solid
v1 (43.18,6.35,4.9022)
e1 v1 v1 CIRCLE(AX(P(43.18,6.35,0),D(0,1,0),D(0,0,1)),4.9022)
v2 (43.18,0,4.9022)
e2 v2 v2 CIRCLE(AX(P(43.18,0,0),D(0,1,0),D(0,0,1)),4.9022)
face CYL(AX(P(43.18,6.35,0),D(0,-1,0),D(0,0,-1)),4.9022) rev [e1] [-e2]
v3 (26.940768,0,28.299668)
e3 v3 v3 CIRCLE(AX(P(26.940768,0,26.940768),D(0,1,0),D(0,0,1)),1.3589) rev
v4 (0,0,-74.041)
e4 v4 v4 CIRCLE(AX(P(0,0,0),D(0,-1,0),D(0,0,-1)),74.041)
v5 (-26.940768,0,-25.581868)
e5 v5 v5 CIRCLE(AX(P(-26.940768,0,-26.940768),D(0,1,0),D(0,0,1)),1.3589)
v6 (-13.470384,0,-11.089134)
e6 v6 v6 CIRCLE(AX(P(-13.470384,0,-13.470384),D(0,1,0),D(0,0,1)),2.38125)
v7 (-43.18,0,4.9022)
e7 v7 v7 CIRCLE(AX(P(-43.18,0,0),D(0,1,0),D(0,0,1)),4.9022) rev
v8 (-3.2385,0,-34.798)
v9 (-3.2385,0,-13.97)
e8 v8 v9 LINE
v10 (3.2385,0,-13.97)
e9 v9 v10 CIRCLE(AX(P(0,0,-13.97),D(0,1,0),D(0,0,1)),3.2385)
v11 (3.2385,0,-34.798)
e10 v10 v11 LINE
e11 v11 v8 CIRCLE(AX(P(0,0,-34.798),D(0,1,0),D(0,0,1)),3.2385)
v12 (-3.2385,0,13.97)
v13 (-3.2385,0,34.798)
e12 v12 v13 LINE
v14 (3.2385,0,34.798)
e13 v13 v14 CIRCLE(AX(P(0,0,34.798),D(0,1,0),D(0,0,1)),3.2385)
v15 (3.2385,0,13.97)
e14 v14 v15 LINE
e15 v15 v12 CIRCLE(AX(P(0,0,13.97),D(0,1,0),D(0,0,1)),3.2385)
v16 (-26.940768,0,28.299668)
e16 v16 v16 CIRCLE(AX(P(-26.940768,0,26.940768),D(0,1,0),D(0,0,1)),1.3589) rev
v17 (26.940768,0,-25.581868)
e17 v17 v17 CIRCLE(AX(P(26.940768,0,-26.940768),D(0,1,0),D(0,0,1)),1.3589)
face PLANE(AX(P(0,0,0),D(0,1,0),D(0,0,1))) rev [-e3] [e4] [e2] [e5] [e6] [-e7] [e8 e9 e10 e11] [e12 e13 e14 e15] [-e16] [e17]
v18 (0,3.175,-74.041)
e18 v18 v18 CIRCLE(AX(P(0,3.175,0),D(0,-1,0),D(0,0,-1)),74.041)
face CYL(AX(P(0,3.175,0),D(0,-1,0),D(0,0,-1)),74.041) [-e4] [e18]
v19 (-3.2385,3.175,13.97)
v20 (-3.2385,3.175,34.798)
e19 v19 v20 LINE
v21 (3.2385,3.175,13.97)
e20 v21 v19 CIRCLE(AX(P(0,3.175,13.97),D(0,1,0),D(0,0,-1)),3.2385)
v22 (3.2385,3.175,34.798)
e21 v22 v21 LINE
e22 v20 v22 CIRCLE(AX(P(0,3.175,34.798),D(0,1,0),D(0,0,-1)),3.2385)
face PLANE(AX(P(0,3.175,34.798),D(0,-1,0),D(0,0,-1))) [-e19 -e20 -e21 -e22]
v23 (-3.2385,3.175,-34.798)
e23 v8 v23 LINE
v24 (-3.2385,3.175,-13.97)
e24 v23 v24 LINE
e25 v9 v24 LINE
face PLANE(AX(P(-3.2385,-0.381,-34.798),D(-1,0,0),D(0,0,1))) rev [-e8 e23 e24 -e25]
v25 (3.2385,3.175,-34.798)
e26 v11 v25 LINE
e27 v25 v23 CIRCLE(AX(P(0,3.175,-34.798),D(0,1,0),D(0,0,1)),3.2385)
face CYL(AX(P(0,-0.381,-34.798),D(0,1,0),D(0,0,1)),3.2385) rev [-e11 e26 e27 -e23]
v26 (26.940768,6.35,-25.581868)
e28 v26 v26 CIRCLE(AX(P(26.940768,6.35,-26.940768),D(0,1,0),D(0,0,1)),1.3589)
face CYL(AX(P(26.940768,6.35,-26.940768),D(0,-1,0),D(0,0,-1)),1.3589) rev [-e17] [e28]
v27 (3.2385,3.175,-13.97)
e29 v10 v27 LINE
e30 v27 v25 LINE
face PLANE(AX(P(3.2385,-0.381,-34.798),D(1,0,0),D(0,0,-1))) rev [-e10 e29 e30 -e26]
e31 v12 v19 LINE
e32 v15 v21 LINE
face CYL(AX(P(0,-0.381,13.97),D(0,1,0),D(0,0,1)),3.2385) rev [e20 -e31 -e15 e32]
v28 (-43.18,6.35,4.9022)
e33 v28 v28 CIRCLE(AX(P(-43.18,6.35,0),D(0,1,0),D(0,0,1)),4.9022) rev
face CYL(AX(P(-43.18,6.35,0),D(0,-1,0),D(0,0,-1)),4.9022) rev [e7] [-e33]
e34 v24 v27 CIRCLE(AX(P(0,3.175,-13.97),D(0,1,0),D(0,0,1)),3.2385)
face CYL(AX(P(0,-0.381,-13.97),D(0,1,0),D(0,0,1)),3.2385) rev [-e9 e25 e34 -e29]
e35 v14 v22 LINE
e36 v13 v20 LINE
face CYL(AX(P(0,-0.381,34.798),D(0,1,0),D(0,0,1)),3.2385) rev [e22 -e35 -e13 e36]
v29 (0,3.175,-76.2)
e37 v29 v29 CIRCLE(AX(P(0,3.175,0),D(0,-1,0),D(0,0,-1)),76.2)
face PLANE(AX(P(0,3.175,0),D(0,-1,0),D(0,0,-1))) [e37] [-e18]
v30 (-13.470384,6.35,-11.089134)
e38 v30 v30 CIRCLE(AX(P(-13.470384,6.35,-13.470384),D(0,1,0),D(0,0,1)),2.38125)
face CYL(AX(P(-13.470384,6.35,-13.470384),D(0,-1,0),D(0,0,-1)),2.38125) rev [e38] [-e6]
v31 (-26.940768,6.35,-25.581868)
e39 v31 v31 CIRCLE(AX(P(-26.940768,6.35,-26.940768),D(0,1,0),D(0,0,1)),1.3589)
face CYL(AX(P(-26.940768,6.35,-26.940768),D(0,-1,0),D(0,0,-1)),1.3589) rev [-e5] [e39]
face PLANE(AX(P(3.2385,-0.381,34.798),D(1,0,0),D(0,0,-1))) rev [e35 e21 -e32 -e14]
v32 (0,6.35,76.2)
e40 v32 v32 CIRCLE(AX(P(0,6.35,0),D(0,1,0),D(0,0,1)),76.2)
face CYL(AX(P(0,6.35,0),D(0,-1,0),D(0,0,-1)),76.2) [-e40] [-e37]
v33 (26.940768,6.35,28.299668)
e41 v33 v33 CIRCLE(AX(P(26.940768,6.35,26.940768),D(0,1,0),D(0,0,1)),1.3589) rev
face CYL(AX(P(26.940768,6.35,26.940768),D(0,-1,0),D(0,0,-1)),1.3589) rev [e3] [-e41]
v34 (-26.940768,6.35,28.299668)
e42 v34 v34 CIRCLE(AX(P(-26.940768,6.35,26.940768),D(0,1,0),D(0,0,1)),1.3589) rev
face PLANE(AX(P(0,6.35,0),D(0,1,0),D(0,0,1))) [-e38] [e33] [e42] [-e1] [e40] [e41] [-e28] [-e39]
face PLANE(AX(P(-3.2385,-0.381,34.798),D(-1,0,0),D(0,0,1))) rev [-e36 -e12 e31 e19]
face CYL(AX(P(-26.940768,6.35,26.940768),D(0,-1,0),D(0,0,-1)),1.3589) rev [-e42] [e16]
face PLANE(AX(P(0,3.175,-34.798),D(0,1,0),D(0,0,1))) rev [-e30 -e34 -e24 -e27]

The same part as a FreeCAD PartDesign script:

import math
import FreeCAD as App
import Part
import Sketcher

V = App.Vector
Q = App.Units.Quantity

doc = App.newDocument("Part")
body = doc.addObject("PartDesign::Body", "Body")

# Sketch on XZ plane
sketch1 = doc.addObject("Sketcher::SketchObject", "Sketch")
body.addObject(sketch1)
sketch1.AttachmentSupport = (doc.XZ_Plane, [""])
sketch1.MapMode = "FlatFace"
sketch1.addGeometry(Part.Circle(V(0, 0, 0), V(0, 0, 1), 76.2), False)
sketch1.addGeometry(Part.Circle(V(-26.9, 26.9, 0), V(0, 0, 1), 1.4), False)
sketch1.addGeometry(Part.Circle(V(-43.2, 0, 0), V(0, 0, 1), 4.9), False)
sketch1.addGeometry(Part.Circle(V(26.9, 26.9, 0), V(0, 0, 1), 1.4), False)
sketch1.addGeometry(Part.Circle(V(43.2, 0, 0), V(0, 0, 1), 4.9), False)
sketch1.addGeometry(Part.Circle(V(-13.5, -13.5, 0), V(0, 0, 1), 2.4), False)
sketch1.addGeometry(Part.Circle(V(-26.9, -26.9, 0), V(0, 0, 1), 1.4), False)
sketch1.addGeometry(Part.Circle(V(26.9, -26.9, 0), V(0, 0, 1), 1.4), False)
sketch1.addConstraint(Sketcher.Constraint("Coincident", 0, 3, -1, 1))
sketch1.addConstraint(Sketcher.Constraint("Equal", 1, 3))
sketch1.addConstraint(Sketcher.Constraint("Equal", 2, 4))
sketch1.addConstraint(Sketcher.Constraint("Equal", 3, 6))
sketch1.addConstraint(Sketcher.Constraint("Equal", 6, 7))
sketch1.addConstraint(Sketcher.Constraint("Symmetric", 2, 3, 4, 3, -1, 1))
sketch1.addConstraint(Sketcher.Constraint("Symmetric", 3, 3, 6, 3, -1, 1))
sketch1.addConstraint(Sketcher.Constraint("Symmetric", 1, 3, 7, 3, -1, 1))
sketch1.addConstraint(Sketcher.Constraint("Symmetric", 1, 3, 3, 3, -2))
sketch1.addConstraint(Sketcher.Constraint("PointOnObject", 2, 3, -1))
sketch1.addConstraint(Sketcher.Constraint("Diameter", 0, Q("6 in")))
sketch1.addConstraint(Sketcher.Constraint("Diameter", 1, Q("0.107 in")))
sketch1.addConstraint(Sketcher.Constraint("Diameter", 2, Q("0.386 in")))
sketch1.addConstraint(Sketcher.Constraint("Diameter", 5, Q("0.1875 in")))
sketch1.addConstraint(Sketcher.Constraint("DistanceX", 2, 3, -1, 1, Q("1.7 in")))
sketch1.addConstraint(Sketcher.Constraint("DistanceX", 1, 3, -1, 1, 26.940768))
sketch1.addConstraint(Sketcher.Constraint("DistanceY", -1, 1, 1, 3, 26.940768))
sketch1.addConstraint(Sketcher.Constraint("DistanceX", 5, 3, -1, 1, 13.470384))
sketch1.addConstraint(Sketcher.Constraint("DistanceY", 5, 3, -1, 1, 13.470384))
pad1 = doc.addObject("PartDesign::Pad", "Pad")
body.addObject(pad1)
pad1.Profile = sketch1
pad1.Length = Q("0.25 in")
pad1.Reversed = True

# Sketch on XZ plane
sketch2 = doc.addObject("Sketcher::SketchObject", "Sketch001")
body.addObject(sketch2)
sketch2.AttachmentSupport = (doc.XZ_Plane, [""])
sketch2.MapMode = "FlatFace"
sketch2.addGeometry(Part.Circle(V(0, 0, 0), V(0, 0, 1), 76), False)
sketch2.addGeometry(Part.Circle(V(0, 0, 0), V(0, 0, 1), 74), False)
sketch2.addConstraint(Sketcher.Constraint("Coincident", 0, 3, -1, 1))
sketch2.addConstraint(Sketcher.Constraint("Coincident", 1, 3, -1, 1))
sketch2.addConstraint(Sketcher.Constraint("Diameter", 0, Q("6 in")))
sketch2.addConstraint(Sketcher.Constraint("Diameter", 1, Q("5.83 in")))
pocket1 = doc.addObject("PartDesign::Pocket", "Pocket")
body.addObject(pocket1)
pocket1.Profile = sketch2
pocket1.Length = Q("0.125 in")

# Sketch on XZ plane
sketch3 = doc.addObject("Sketcher::SketchObject", "Sketch002")
body.addObject(sketch3)
sketch3.AttachmentSupport = (doc.XZ_Plane, [""])
sketch3.MapMode = "FlatFace"
sketch3.AttachmentOffset = App.Placement(V(0, 0, -0.125 * 25.4), App.Rotation())
sketch3.addGeometry(Part.LineSegment(V(3.2, -14, 0), V(3.2, -34.8, 0)), False)
sketch3.addGeometry(Part.ArcOfCircle(Part.Circle(V(0, -34.8, 0), V(0, 0, 1), 3.2), math.radians(180), math.radians(360)), False)
sketch3.addGeometry(Part.LineSegment(V(-3.2, -34.8, 0), V(-3.2, -14, 0)), False)
sketch3.addGeometry(Part.ArcOfCircle(Part.Circle(V(0, -14, 0), V(0, 0, 1), 3.2), math.radians(0), math.radians(180)), False)
sketch3.addGeometry(Part.LineSegment(V(3.2, 34.8, 0), V(3.2, 14, 0)), False)
sketch3.addGeometry(Part.ArcOfCircle(Part.Circle(V(0, 14, 0), V(0, 0, 1), 3.2), math.radians(180), math.radians(360)), False)
sketch3.addGeometry(Part.LineSegment(V(-3.2, 14, 0), V(-3.2, 34.8, 0)), False)
sketch3.addGeometry(Part.ArcOfCircle(Part.Circle(V(0, 34.8, 0), V(0, 0, 1), 3.2), math.radians(0), math.radians(180)), False)
sketch3.addConstraint(Sketcher.Constraint("Tangent", 0, 2, 1, 2))
sketch3.addConstraint(Sketcher.Constraint("Tangent", 1, 1, 2, 1))
sketch3.addConstraint(Sketcher.Constraint("Tangent", 2, 2, 3, 2))
sketch3.addConstraint(Sketcher.Constraint("Tangent", 3, 1, 0, 1))
sketch3.addConstraint(Sketcher.Constraint("Tangent", 4, 2, 5, 2))
sketch3.addConstraint(Sketcher.Constraint("Tangent", 5, 1, 6, 1))
sketch3.addConstraint(Sketcher.Constraint("Tangent", 6, 2, 7, 2))
sketch3.addConstraint(Sketcher.Constraint("Tangent", 7, 1, 4, 1))
sketch3.addConstraint(Sketcher.Constraint("Vertical", 0))
sketch3.addConstraint(Sketcher.Constraint("Vertical", 2))
sketch3.addConstraint(Sketcher.Constraint("Vertical", 4))
sketch3.addConstraint(Sketcher.Constraint("Vertical", 6))
sketch3.addConstraint(Sketcher.Constraint("Equal", 3, 5))
sketch3.addConstraint(Sketcher.Constraint("Symmetric", 3, 3, 5, 3, -1, 1))
sketch3.addConstraint(Sketcher.Constraint("Symmetric", 1, 3, 7, 3, -1))
sketch3.addConstraint(Sketcher.Constraint("DistanceY", 0, 2, 0, 1, Q("0.82 in")))
sketch3.addConstraint(Sketcher.Constraint("Radius", 1, Q("0.1275 in")))
sketch3.addConstraint(Sketcher.Constraint("DistanceY", 3, 3, 5, 3, Q("1.1 in")))
pocket2 = doc.addObject("PartDesign::Pocket", "Pocket001")
body.addObject(pocket2)
pocket2.Profile = sketch3
pocket2.Length = Q("0.14 in")
pocket2.Reversed = True

doc.recompute()
